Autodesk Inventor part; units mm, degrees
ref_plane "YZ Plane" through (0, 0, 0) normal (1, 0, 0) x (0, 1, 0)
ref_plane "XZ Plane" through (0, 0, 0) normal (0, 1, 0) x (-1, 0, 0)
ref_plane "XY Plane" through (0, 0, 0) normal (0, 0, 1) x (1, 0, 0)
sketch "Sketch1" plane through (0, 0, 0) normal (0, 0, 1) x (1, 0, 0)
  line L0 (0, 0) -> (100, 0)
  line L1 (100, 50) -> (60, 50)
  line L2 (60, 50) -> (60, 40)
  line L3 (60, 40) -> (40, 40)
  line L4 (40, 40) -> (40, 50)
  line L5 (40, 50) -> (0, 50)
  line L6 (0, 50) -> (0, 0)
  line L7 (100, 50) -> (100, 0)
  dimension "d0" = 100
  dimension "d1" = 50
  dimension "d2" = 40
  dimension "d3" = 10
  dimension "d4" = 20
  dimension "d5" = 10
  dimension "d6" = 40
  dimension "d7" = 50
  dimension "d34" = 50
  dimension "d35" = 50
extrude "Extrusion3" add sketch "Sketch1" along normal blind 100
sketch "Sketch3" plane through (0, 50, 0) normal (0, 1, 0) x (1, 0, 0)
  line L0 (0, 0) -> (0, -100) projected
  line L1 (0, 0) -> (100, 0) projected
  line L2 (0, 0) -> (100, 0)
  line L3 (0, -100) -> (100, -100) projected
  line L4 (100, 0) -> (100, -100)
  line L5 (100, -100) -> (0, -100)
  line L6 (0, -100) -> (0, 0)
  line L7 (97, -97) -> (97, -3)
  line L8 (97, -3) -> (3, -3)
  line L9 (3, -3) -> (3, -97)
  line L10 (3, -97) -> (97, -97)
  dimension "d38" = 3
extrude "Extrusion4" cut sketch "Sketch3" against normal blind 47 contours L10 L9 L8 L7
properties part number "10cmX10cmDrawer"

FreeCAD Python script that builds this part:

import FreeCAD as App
import Part
import Sketcher


def add_polygon(sketch, points):
    """Adds a closed chain of lines whose ends are joined by coincident constraints."""
    first, n = sketch.GeometryCount, len(points)
    for a, b in zip(points, points[1:] + points[:1]):
        sketch.addGeometry(Part.LineSegment(App.Vector(*a, 0), App.Vector(*b, 0)), False)
    for i in range(n):
        sketch.addConstraint(Sketcher.Constraint("Coincident", first + i, 2, first + (i + 1) % n, 1))

doc = App.newDocument("Part")
params = doc.addObject("Spreadsheet::Sheet", "Params")
for row, (alias, value) in enumerate([
    ("sketch1_width", "100 mm"),
    ("sketch1_width2", "40 mm"),
    ("sketch1_height", "50 mm"),
    ("sketch1_height2", "10 mm"),
    ("pad1_length", "100 mm"),
    ("sketch2_width", "94 mm"),
    ("pocket1_length", "47 mm"),
], start=1):
    params.set(f"A{row}", alias)
    params.set(f"B{row}", "=" + value)
    params.setAlias(f"B{row}", alias)

body = doc.addObject("PartDesign::Body", "Body")

# Sketch on XY plane
sketch1 = doc.addObject("Sketcher::SketchObject", "Sketch")
body.addObject(sketch1)
sketch1.AttachmentSupport = (doc.XY_Plane, [""])
sketch1.MapMode = "FlatFace"
add_polygon(sketch1, [(0, 50), (0, 0), (100, 0), (100, 50), (60, 50), (60, 40), (40, 40), (40, 50)])  # lines 0-7
sketch1.addConstraint([
    Sketcher.Constraint("Vertical", 0),
    Sketcher.Constraint("Horizontal", 1),
    Sketcher.Constraint("Vertical", 2),
    Sketcher.Constraint("Horizontal", 3),
    Sketcher.Constraint("Vertical", 4),
    Sketcher.Constraint("Horizontal", 5),
    Sketcher.Constraint("Vertical", 6),
    Sketcher.Constraint("Horizontal", 7),
    Sketcher.Constraint("Coincident", 0, 2, -1, 1),
    Sketcher.Constraint("Horizontal", 3, 2, 6, 2),
    Sketcher.Constraint("Equal", 3, 7),
    Sketcher.Constraint("DistanceX", 1, 1, 1, 2, 100.0),
    Sketcher.Constraint("DistanceX", 3, 2, 3, 1, 40.0),
    Sketcher.Constraint("DistanceY", 0, 2, 0, 1, 50.0),
    Sketcher.Constraint("DistanceY", 4, 2, 4, 1, 10.0),
])
sketch1.setExpression("Constraints[19]", "Params.sketch1_width")
sketch1.setExpression("Constraints[20]", "Params.sketch1_width2")
sketch1.setExpression("Constraints[21]", "Params.sketch1_height")
sketch1.setExpression("Constraints[22]", "Params.sketch1_height2")
pad1 = doc.addObject("PartDesign::Pad", "Pad")
body.addObject(pad1)
pad1.Profile = sketch1
pad1.setExpression("Length", "Params.pad1_length")

# Sketch on XZ plane
sketch2 = doc.addObject("Sketcher::SketchObject", "Sketch001")
body.addObject(sketch2)
sketch2.AttachmentSupport = (doc.XZ_Plane, [""])
sketch2.MapMode = "FlatFace"
sketch2.AttachmentOffset = App.Placement(App.Vector(0, 0, -50), App.Rotation())
add_polygon(sketch2, [(3, 97), (97, 97), (97, 3), (3, 3)])  # lines 0-3
sketch2.addConstraint([
    Sketcher.Constraint("Horizontal", 0),
    Sketcher.Constraint("Vertical", 1),
    Sketcher.Constraint("Horizontal", 2),
    Sketcher.Constraint("Vertical", 3),
    Sketcher.Constraint("Equal", 2, 1),
    Sketcher.Constraint("DistanceY", -1, 1, 1, 2, 3.0),
    Sketcher.Constraint("DistanceX", -1, 1, 2, 2, 3.0),
    Sketcher.Constraint("DistanceX", 0, 1, 0, 2, 94.0),
])
sketch2.setExpression("Constraints[11]", "Params.sketch2_width")
pocket1 = doc.addObject("PartDesign::Pocket", "Pocket")
body.addObject(pocket1)
pocket1.Profile = sketch2
pocket1.setExpression("Length", "Params.pocket1_length")
pocket1.Reversed = True

doc.recompute()
